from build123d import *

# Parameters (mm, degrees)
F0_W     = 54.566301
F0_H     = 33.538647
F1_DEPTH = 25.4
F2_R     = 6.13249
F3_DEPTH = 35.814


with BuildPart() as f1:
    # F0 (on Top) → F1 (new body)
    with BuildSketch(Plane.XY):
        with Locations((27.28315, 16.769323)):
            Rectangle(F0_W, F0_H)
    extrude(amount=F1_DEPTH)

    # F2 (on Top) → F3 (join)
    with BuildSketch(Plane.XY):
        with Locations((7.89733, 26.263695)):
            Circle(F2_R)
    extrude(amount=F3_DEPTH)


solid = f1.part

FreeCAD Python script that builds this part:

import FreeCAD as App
import Part
import Sketcher

V = App.Vector
Q = App.Units.Quantity

doc = App.newDocument("Part")
body = doc.addObject("PartDesign::Body", "Body")

# Sketch on XY plane
sketch1 = body.newObject("Sketcher::SketchObject", "Sketch")
sketch1.AttachmentSupport = (doc.getObject("XY_Plane"), [""])
sketch1.MapMode = "FlatFace"
sketch1.addGeometry([
    Part.LineSegment(V(0, 34, 0), V(0, 0, 0)),
    Part.LineSegment(V(0, 0, 0), V(55, 0, 0)),
    Part.LineSegment(V(55, 0, 0), V(55, 34, 0)),
    Part.LineSegment(V(55, 34, 0), V(0, 34, 0)),
], False)
sketch1.addConstraint([
    Sketcher.Constraint("Coincident", 0, 2, 1, 1),
    Sketcher.Constraint("Coincident", 1, 2, 2, 1),
    Sketcher.Constraint("Coincident", 2, 2, 3, 1),
    Sketcher.Constraint("Coincident", 3, 2, 0, 1),
    Sketcher.Constraint("Vertical", 0),
    Sketcher.Constraint("Horizontal", 1),
    Sketcher.Constraint("Vertical", 2),
    Sketcher.Constraint("Horizontal", 3),
    Sketcher.Constraint("Coincident", 0, 2, -1, 1),
    Sketcher.Constraint("DistanceX", 1, 1, 1, 2, 54.566301),
    Sketcher.Constraint("DistanceY", 0, 2, 0, 1, 33.538647),
])
pad1 = body.newObject("PartDesign::Pad", "Pad")
pad1.Profile = sketch1
pad1.Length = Q("1 in")

# Sketch on XY plane
sketch2 = body.newObject("Sketcher::SketchObject", "Sketch001")
sketch2.AttachmentSupport = (doc.getObject("XY_Plane"), [""])
sketch2.MapMode = "FlatFace"
sketch2.addGeometry(Part.Circle(V(8, 26, 0), V(0, 0, 1), 6), False)
sketch2.addConstraint([
    Sketcher.Constraint("Diameter", 0, 12.26498),
    Sketcher.Constraint("DistanceX", -1, 1, 0, 3, 7.89733),
    Sketcher.Constraint("DistanceY", -1, 1, 0, 3, 26.263695),
])
pad2 = body.newObject("PartDesign::Pad", "Pad001")
pad2.Profile = sketch2
pad2.Length = Q("1.41 in")

doc.recompute()
